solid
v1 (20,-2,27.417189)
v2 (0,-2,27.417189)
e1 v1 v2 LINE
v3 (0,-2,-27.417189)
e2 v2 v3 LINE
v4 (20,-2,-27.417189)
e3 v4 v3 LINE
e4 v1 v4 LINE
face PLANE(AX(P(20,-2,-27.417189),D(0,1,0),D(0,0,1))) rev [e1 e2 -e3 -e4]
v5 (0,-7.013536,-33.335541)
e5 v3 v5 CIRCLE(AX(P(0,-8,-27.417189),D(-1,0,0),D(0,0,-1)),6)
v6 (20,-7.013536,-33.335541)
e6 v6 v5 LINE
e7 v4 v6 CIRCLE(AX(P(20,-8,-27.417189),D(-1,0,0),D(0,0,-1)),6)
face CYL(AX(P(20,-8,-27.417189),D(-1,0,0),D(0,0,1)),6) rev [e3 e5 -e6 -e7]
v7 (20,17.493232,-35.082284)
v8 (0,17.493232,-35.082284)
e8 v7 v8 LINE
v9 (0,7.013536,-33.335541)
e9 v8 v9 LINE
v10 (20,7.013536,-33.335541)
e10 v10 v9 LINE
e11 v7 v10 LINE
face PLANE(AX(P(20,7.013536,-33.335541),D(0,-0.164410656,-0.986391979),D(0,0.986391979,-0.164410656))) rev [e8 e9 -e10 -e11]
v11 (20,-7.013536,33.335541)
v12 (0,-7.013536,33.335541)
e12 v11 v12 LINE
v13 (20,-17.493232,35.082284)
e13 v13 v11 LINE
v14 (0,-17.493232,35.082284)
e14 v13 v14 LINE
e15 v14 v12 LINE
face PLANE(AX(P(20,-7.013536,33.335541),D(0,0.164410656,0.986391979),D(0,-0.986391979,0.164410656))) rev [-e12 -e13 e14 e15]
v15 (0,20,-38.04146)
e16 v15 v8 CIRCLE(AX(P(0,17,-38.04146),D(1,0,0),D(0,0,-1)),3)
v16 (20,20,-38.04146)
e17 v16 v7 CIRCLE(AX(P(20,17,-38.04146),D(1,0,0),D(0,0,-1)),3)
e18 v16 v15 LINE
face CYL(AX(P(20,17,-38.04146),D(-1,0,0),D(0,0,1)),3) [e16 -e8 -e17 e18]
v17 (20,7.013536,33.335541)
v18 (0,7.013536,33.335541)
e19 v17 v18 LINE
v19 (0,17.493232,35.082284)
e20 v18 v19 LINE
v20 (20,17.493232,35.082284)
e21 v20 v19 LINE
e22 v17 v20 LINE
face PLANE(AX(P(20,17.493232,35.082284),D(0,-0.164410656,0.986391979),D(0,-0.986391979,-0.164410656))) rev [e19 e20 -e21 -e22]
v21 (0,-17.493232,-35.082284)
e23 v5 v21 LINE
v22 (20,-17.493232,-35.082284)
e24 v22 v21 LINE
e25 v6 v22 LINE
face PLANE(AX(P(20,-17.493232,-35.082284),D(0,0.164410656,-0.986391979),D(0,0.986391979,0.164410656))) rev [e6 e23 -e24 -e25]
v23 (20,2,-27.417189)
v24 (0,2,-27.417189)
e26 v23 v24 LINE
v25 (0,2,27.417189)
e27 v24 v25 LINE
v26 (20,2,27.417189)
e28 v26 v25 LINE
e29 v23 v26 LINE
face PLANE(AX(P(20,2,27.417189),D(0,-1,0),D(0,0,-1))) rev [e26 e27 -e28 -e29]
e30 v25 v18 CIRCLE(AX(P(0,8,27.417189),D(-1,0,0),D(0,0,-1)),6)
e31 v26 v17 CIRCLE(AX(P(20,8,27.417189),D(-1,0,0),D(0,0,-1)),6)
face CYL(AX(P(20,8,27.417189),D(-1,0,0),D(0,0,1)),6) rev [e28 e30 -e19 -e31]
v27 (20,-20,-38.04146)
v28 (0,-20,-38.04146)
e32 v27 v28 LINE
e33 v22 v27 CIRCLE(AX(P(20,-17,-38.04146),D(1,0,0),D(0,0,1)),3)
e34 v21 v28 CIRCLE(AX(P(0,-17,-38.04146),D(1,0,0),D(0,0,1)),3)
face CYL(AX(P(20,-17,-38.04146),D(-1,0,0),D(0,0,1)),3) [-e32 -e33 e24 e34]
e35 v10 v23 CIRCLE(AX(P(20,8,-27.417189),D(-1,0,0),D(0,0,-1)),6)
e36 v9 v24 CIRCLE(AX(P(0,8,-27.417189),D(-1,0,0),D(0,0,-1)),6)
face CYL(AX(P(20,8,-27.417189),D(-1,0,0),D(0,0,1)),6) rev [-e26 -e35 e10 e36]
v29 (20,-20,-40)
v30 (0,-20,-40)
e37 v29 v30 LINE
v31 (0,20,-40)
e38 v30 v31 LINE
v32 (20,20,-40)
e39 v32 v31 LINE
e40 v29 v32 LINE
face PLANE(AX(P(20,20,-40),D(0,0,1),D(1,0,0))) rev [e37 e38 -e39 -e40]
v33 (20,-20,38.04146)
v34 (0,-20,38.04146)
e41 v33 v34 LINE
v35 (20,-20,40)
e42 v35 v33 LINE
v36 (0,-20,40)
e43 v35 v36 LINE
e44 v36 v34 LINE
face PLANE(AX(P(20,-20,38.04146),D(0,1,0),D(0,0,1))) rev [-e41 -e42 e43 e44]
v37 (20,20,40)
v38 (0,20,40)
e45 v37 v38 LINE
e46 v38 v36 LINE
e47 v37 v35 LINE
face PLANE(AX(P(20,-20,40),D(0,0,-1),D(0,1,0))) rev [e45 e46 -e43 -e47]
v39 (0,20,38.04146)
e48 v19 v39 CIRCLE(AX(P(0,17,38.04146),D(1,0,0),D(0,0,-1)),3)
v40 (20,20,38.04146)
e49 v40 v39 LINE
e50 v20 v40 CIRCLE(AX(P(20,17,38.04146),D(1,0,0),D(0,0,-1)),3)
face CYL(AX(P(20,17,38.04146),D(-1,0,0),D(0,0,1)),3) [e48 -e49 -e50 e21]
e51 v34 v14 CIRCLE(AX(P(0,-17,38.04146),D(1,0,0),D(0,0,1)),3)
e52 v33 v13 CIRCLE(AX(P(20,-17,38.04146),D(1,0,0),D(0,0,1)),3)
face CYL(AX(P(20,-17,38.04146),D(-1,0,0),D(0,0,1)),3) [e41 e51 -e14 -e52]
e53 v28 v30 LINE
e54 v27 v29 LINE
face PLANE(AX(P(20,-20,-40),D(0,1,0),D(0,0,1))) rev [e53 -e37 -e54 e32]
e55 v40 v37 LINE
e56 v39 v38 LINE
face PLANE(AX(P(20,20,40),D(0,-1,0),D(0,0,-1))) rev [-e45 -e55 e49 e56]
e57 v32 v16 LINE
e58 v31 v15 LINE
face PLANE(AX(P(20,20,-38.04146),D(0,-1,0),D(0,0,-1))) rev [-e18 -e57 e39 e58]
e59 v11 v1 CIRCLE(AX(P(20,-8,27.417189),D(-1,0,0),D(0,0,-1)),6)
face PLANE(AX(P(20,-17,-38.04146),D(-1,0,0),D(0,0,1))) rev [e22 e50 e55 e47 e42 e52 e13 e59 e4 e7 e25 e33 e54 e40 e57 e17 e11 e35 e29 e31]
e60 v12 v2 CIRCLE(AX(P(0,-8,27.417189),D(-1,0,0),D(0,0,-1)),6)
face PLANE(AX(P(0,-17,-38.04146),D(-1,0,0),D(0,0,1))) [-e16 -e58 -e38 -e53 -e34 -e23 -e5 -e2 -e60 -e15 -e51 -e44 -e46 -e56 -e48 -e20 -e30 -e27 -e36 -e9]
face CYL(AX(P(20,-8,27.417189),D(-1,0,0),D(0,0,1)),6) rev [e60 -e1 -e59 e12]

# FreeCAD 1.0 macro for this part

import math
import FreeCAD as App
import Part
import Sketcher
from FreeCAD import Vector
Q = App.Units.Quantity

doc = App.newDocument("Part")
body = doc.addObject("PartDesign::Body", "Body")

sketch1 = body.newObject("Sketcher::SketchObject", "Sketch")
sketch1.AttachmentSupport = (doc.getObject("YZ_Plane"), [""])
sketch1.MapMode = "FlatFace"
sketch1.addGeometry([
    Part.LineSegment(Vector(-20, -38.04146, 0), Vector(-20, -40, 0)),
    Part.LineSegment(Vector(-20, -40, 0), Vector(20, -40, 0)),
    Part.LineSegment(Vector(20, -40, 0), Vector(20, -38.04146, 0)),
    Part.ArcOfCircle(Part.Circle(Vector(17, -38.04146, 0), Vector(0, 0, 1), 3), math.radians(0), math.radians(80.537)),
    Part.LineSegment(Vector(17.493232, -35.082284, 0), Vector(7.013536, -33.335541, 0)),
    Part.ArcOfCircle(Part.Circle(Vector(8, -27.417189, 0), Vector(0, 0, 1), 6), math.radians(180), math.radians(260.537)),
    Part.LineSegment(Vector(2, -27.417189, 0), Vector(2, 27.417189, 0)),
    Part.ArcOfCircle(Part.Circle(Vector(8, 27.417189, 0), Vector(0, 0, 1), 6), math.radians(99.463), math.radians(180)),
    Part.LineSegment(Vector(7.013536, 33.335541, 0), Vector(17.493232, 35.082284, 0)),
    Part.ArcOfCircle(Part.Circle(Vector(17, 38.04146, 0), Vector(0, 0, 1), 3), math.radians(-80.537), math.radians(0)),
    Part.LineSegment(Vector(20, 38.04146, 0), Vector(20, 40, 0)),
    Part.LineSegment(Vector(20, 40, 0), Vector(-20, 40, 0)),
    Part.LineSegment(Vector(-20, 40, 0), Vector(-20, 38.04146, 0)),
    Part.ArcOfCircle(Part.Circle(Vector(-17, 38.04146, 0), Vector(0, 0, 1), 3), math.radians(180), math.radians(260.537)),
    Part.LineSegment(Vector(-17.493232, 35.082284, 0), Vector(-7.013536, 33.335541, 0)),
    Part.ArcOfCircle(Part.Circle(Vector(-8, 27.417189, 0), Vector(0, 0, 1), 6), math.radians(0), math.radians(80.537)),
    Part.LineSegment(Vector(-2, 27.417189, 0), Vector(-2, -27.417189, 0)),
    Part.ArcOfCircle(Part.Circle(Vector(-8, -27.417189, 0), Vector(0, 0, 1), 6), math.radians(-80.537), math.radians(0)),
    Part.LineSegment(Vector(-7.013536, -33.335541, 0), Vector(-17.493232, -35.082284, 0)),
    Part.ArcOfCircle(Part.Circle(Vector(-17, -38.04146, 0), Vector(0, 0, 1), 3), math.radians(99.463), math.radians(180)),
], False)
sketch1.addConstraint([
    Sketcher.Constraint("Coincident", 0, 2, 1, 1),
    Sketcher.Constraint("Coincident", 1, 2, 2, 1),
    Sketcher.Constraint("Tangent", 2, 2, 3, 1),
    Sketcher.Constraint("Tangent", 3, 2, 4, 1),
    Sketcher.Constraint("Tangent", 4, 2, 5, 2),
    Sketcher.Constraint("Tangent", 5, 1, 6, 1),
    Sketcher.Constraint("Tangent", 6, 2, 7, 2),
    Sketcher.Constraint("Tangent", 7, 1, 8, 1),
    Sketcher.Constraint("Tangent", 8, 2, 9, 1),
    Sketcher.Constraint("Tangent", 9, 2, 10, 1),
    Sketcher.Constraint("Coincident", 10, 2, 11, 1),
    Sketcher.Constraint("Coincident", 11, 2, 12, 1),
    Sketcher.Constraint("Tangent", 12, 2, 13, 1),
    Sketcher.Constraint("Tangent", 13, 2, 14, 1),
    Sketcher.Constraint("Tangent", 14, 2, 15, 2),
    Sketcher.Constraint("Tangent", 15, 1, 16, 1),
    Sketcher.Constraint("Tangent", 16, 2, 17, 2),
    Sketcher.Constraint("Tangent", 17, 1, 18, 1),
    Sketcher.Constraint("Tangent", 18, 2, 19, 1),
    Sketcher.Constraint("Tangent", 19, 2, 0, 1),
    Sketcher.Constraint("Vertical", 0),
    Sketcher.Constraint("Horizontal", 1),
    Sketcher.Constraint("Vertical", 2),
    Sketcher.Constraint("Vertical", 6),
    Sketcher.Constraint("Vertical", 10),
    Sketcher.Constraint("Horizontal", 11),
    Sketcher.Constraint("Vertical", 12),
    Sketcher.Constraint("Vertical", 16),
    Sketcher.Constraint("Equal", 5, 7),
    Sketcher.Constraint("Equal", 3, 9),
    Sketcher.Constraint("Equal", 9, 13),
    Sketcher.Constraint("Equal", 7, 15),
    Sketcher.Constraint("Equal", 15, 17),
    Sketcher.Constraint("Equal", 13, 19),
    Sketcher.Constraint("Symmetric", 3, 3, 13, 3, -1, 1),
    Sketcher.Constraint("Symmetric", 5, 3, 15, 3, -1, 1),
    Sketcher.Constraint("Symmetric", 9, 3, 19, 3, -1, 1),
    Sketcher.Constraint("Symmetric", 9, 3, 13, 3, -2),
    Sketcher.Constraint("Parallel", 8, 18),
    Sketcher.Constraint("Horizontal", 7, 3, 15, 3),
    Sketcher.Constraint("Equal", 2, 10),
    Sketcher.Constraint("Radius", 3, Q("3 mm")),
    Sketcher.Constraint("Radius", 5, Q("6 mm")),
    Sketcher.Constraint("DistanceX", 1, 1, 1, 2, Q("40 mm")),
    Sketcher.Constraint("DistanceX", -1, 1, 5, 3, Q("8 mm")),
    Sketcher.Constraint("DistanceY", 0, 2, -1, 1, Q("40 mm")),
    Sketcher.Constraint("DistanceY", 0, 2, 0, 1, Q("1.95854 mm")),
    Sketcher.Constraint("Distance", 4, Q("10.624271 mm")),
])
pad1 = body.newObject("PartDesign::Pad", "Pad")
pad1.Profile = sketch1
pad1.Length = 20

doc.recompute()
